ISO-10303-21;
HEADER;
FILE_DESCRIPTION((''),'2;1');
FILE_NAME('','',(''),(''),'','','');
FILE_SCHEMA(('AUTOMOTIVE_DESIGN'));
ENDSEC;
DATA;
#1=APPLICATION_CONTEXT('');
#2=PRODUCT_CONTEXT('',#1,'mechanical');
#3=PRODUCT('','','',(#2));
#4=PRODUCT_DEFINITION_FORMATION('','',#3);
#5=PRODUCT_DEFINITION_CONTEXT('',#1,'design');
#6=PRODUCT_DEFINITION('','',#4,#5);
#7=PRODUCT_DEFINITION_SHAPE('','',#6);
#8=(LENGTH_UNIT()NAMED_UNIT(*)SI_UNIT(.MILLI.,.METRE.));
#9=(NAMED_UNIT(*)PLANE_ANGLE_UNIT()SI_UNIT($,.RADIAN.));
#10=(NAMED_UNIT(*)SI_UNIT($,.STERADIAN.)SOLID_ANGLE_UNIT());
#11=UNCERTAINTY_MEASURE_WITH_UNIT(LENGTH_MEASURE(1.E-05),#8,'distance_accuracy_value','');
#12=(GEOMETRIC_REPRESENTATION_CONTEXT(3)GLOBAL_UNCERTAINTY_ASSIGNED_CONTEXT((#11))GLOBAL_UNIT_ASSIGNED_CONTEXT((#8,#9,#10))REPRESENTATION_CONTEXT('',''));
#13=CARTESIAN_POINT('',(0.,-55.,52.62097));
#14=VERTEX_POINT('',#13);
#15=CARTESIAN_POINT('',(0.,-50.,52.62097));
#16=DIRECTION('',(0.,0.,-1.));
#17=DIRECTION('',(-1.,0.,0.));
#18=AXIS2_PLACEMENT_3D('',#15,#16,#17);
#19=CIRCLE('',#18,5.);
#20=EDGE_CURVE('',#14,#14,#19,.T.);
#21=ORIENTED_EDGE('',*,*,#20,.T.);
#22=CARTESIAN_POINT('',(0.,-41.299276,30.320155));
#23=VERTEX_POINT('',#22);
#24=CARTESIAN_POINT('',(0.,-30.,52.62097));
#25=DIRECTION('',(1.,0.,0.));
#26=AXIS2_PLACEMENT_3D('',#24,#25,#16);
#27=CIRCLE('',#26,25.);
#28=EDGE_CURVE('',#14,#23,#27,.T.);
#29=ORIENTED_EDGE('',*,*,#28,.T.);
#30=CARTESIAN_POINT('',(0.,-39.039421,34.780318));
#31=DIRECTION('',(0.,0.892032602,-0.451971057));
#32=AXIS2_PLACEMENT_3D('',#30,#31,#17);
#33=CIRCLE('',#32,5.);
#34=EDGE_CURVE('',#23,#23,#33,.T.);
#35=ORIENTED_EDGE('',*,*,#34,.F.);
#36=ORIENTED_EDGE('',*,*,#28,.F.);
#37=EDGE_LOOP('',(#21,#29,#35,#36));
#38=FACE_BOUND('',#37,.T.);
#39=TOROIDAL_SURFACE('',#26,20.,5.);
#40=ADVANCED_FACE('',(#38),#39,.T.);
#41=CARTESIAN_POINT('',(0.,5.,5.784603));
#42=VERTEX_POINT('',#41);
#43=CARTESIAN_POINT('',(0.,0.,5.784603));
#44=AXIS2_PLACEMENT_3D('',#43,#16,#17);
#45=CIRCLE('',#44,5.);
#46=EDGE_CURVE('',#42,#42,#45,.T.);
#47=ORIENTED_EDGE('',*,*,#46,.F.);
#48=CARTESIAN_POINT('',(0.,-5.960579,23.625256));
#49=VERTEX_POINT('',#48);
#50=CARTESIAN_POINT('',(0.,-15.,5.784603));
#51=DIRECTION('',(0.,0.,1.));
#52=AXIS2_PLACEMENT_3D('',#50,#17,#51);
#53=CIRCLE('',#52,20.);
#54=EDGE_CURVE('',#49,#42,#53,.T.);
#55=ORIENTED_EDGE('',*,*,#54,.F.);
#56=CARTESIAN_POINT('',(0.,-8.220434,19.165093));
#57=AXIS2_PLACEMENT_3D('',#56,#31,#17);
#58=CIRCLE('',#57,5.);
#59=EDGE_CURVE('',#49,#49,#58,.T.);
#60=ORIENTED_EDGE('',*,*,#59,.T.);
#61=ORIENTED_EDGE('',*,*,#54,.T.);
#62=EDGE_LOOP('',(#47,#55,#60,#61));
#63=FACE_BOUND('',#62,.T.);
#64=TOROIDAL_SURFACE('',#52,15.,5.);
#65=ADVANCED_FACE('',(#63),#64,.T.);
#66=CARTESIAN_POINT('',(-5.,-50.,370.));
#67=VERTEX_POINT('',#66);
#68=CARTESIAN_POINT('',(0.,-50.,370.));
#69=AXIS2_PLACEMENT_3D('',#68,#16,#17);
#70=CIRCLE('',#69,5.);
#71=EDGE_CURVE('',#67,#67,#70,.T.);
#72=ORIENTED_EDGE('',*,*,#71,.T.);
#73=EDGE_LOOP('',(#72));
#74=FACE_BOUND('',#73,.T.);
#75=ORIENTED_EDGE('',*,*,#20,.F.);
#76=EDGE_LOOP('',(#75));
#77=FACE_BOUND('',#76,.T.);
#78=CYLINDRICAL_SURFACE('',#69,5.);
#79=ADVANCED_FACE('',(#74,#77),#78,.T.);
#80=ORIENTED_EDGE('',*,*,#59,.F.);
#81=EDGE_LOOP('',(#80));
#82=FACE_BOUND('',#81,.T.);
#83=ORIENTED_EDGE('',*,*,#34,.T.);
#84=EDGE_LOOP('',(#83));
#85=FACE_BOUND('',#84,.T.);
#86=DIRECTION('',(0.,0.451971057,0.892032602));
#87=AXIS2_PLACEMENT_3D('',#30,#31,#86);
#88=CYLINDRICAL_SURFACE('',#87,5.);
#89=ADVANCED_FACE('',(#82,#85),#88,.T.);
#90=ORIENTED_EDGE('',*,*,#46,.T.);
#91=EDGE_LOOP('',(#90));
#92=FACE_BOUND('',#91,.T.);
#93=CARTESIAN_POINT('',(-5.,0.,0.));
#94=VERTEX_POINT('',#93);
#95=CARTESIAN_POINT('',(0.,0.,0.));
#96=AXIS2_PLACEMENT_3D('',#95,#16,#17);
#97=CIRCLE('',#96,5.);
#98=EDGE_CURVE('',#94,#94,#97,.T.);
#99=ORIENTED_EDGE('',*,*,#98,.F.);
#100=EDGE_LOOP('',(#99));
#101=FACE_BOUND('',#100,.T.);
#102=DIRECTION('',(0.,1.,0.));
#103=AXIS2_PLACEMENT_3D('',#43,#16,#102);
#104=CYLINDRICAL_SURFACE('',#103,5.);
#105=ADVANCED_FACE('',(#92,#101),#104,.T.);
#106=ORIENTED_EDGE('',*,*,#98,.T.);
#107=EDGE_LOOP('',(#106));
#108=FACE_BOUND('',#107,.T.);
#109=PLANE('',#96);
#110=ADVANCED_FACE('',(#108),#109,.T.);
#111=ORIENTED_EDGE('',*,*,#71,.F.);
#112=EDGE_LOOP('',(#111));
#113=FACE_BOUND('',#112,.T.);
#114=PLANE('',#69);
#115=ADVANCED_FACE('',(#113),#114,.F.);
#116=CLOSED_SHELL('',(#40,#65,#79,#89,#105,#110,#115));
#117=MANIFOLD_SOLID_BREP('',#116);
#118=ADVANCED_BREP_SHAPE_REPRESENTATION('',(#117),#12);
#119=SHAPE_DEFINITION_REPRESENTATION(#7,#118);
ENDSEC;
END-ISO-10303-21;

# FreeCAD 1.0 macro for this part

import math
import FreeCAD as App
import Part
import Sketcher
from FreeCAD import Vector

doc = App.newDocument("Part")
params = doc.addObject("Spreadsheet::Sheet", "Params")
for row, (alias, value) in enumerate([
    ("sketch1_diameter", "10 mm"),
    ("sketch2_radius", "15 mm"),
    ("sketch2_radius2", "20 mm"),
], start=1):
    params.set(f"A{row}", alias)
    params.set(f"B{row}", "=" + value)
    params.setAlias(f"B{row}", alias)

body = doc.addObject("PartDesign::Body", "Body")

# Sketch on XY plane
sketch1 = body.newObject("Sketcher::SketchObject", "Sketch")
sketch1.AttachmentSupport = (doc.getObject("XY_Plane"), [""])
sketch1.MapMode = "FlatFace"
sketch1.addGeometry(Part.Circle(Vector(0, 0, 0), Vector(0, 0, 1), 5), False)
sketch1.addConstraint(Sketcher.Constraint("Coincident", 0, 3, -1, 1))
sketch1.addConstraint(Sketcher.Constraint("Diameter", 0, 10.0))
sketch1.setExpression("Constraints[1]", "Params.sketch1_diameter")

# Sketch on YZ plane
sketch2 = body.newObject("Sketcher::SketchObject", "Sketch001")
sketch2.AttachmentSupport = (doc.getObject("YZ_Plane"), [""])
sketch2.MapMode = "FlatFace"
sketch2.addGeometry(Part.LineSegment(Vector(0, 0, 0), Vector(0, 5.784603, 0)), False)
sketch2.addGeometry(Part.ArcOfCircle(Part.Circle(Vector(-15, 5.784603, 0), Vector(0, 0, 1), 15), math.radians(0), math.radians(63.129785)), False)
sketch2.addGeometry(Part.LineSegment(Vector(-8.220434, 19.165093, 0), Vector(-39.039421, 34.780318, 0)), False)
sketch2.addGeometry(Part.ArcOfCircle(Part.Circle(Vector(-30, 52.62097, 0), Vector(0, 0, 1), 20), math.radians(180), math.radians(243.129785)), False)
sketch2.addGeometry(Part.LineSegment(Vector(-50, 52.62097, 0), Vector(-50, 370, 0)), False)
sketch2.addConstraint(Sketcher.Constraint("Tangent", 0, 2, 1, 1))
sketch2.addConstraint(Sketcher.Constraint("Tangent", 1, 2, 2, 1))
sketch2.addConstraint(Sketcher.Constraint("Tangent", 2, 2, 3, 2))
sketch2.addConstraint(Sketcher.Constraint("Tangent", 3, 1, 4, 1))
sketch2.addConstraint(Sketcher.Constraint("Vertical", 0))
sketch2.addConstraint(Sketcher.Constraint("Vertical", 4))
sketch2.addConstraint(Sketcher.Constraint("Coincident", 0, 1, -1, 1))
sketch2.addConstraint(Sketcher.Constraint("Radius", 1, 15.0))
sketch2.addConstraint(Sketcher.Constraint("Radius", 3, 20.0))
sketch2.addConstraint(Sketcher.Constraint("DistanceX", 3, 3, -1, 1, 30.0))
sketch2.addConstraint(Sketcher.Constraint("DistanceY", -1, 1, 4, 2, 370.0))
sketch2.addConstraint(Sketcher.Constraint("DistanceY", 4, 1, 4, 2, 317.37903))
sketch2.addConstraint(Sketcher.Constraint("Distance", 2, 34.549171))
sketch2.setExpression("Constraints[7]", "Params.sketch2_radius")
sketch2.setExpression("Constraints[8]", "Params.sketch2_radius2")
doc.recompute()

additivepipe = body.newObject("PartDesign::AdditivePipe", "AdditivePipe")
additivepipe.Profile = sketch1
additivepipe.Spine = (sketch2, ["Edge1", "Edge2", "Edge3", "Edge4", "Edge5"])

doc.recompute()
